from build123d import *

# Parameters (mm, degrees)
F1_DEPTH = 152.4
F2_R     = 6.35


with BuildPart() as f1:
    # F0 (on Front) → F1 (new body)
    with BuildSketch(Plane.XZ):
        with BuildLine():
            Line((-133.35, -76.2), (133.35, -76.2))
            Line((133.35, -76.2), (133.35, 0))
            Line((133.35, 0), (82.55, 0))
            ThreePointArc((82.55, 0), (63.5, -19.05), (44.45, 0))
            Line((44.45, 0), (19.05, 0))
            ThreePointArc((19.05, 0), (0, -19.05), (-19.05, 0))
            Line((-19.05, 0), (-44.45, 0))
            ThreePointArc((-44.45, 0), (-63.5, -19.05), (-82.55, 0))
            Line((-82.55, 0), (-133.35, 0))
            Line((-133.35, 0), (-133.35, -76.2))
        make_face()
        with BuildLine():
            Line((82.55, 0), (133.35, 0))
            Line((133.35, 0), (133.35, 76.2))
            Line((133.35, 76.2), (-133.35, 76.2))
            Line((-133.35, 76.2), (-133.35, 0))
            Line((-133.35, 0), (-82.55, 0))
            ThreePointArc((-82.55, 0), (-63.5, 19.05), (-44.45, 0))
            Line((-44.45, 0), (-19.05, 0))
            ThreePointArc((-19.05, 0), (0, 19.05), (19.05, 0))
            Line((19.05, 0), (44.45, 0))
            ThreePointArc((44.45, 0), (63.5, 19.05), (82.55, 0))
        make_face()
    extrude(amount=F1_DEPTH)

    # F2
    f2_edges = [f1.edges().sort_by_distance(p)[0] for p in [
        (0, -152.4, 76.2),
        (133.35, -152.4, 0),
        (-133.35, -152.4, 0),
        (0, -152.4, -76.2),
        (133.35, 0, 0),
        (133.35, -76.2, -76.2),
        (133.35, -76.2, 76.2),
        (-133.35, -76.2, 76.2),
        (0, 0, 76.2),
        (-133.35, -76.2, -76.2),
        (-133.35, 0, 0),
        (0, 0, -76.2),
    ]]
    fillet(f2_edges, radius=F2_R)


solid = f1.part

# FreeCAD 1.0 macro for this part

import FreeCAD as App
import Part
import Sketcher

V = App.Vector
Q = App.Units.Quantity


def edges_at(feature, points):
    """Names of the edges that pass closest to the given points."""
    edges = feature.Shape.Edges
    near = lambda p: min(range(len(edges)), key=lambda i: edges[i].distToShape(Part.Vertex(*p))[0])
    return sorted({f"Edge{near(p) + 1}" for p in points})


def add_polygon(sketch, points):
    """Adds a closed chain of lines whose ends are joined by coincident constraints."""
    first, n = sketch.GeometryCount, len(points)
    for a, b in zip(points, points[1:] + points[:1]):
        sketch.addGeometry(Part.LineSegment(App.Vector(*a, 0), App.Vector(*b, 0)), False)
    for i in range(n):
        sketch.addConstraint(Sketcher.Constraint("Coincident", first + i, 2, first + (i + 1) % n, 1))

doc = App.newDocument("Part")
params = doc.addObject("Spreadsheet::Sheet", "Params")
for row, (alias, value) in enumerate([
    ("sketch1_diameter", "1.5 in"),
    ("sketch1_height", "6 in"),
    ("sketch1_width", "10.5 in"),
    ("pad1_length", "6 in"),
    ("fillet_radius", "0.25 in"),
], start=1):
    params.set(f"A{row}", alias)
    params.set(f"B{row}", "=" + value)
    params.setAlias(f"B{row}", alias)

body = doc.addObject("PartDesign::Body", "Body")

sketch1 = body.newObject("Sketcher::SketchObject", "Sketch")
sketch1.AttachmentSupport = (doc.getObject("XZ_Plane"), [""])
sketch1.MapMode = "FlatFace"
add_polygon(sketch1, [(-133, -76), (133, -76), (133, 76), (-133, 76)])
sketch1.addGeometry(Part.Circle(V(64, 0, 0), V(0, 0, 1), 19), False)
sketch1.addGeometry(Part.Circle(V(0, 0, 0), V(0, 0, 1), 19), False)
sketch1.addGeometry(Part.Circle(V(-64, 0, 0), V(0, 0, 1), 19), False)
sketch1.addConstraint([
    Sketcher.Constraint("Horizontal", 0),
    Sketcher.Constraint("Vertical", 1),
    Sketcher.Constraint("Horizontal", 2),
    Sketcher.Constraint("Vertical", 3),
    Sketcher.Constraint("Coincident", 5, 3, -1, 1),
    Sketcher.Constraint("Equal", 4, 5),
    Sketcher.Constraint("Equal", 5, 6),
    Sketcher.Constraint("Symmetric", 4, 3, 6, 3, -1, 1),
    Sketcher.Constraint("Symmetric", 0, 2, 2, 2, -1, 1),
    Sketcher.Constraint("PointOnObject", 4, 3, -1),
    Sketcher.Constraint("Diameter", 4, Q("1.5 in")),
    Sketcher.Constraint("DistanceY", 1, 1, 1, 2, Q("6 in")),
    Sketcher.Constraint("DistanceX", 0, 1, 0, 2, Q("10.5 in")),
    Sketcher.Constraint("DistanceX", 6, 3, 4, 3, Q("5 in")),
])
sketch1.setExpression("Constraints[14]", "Params.sketch1_diameter")
sketch1.setExpression("Constraints[15]", "Params.sketch1_height")
sketch1.setExpression("Constraints[16]", "Params.sketch1_width")
pad1 = body.newObject("PartDesign::Pad", "Pad")
pad1.Profile = sketch1
pad1.setExpression("Length", "Params.pad1_length")
doc.recompute()

fillet = body.newObject("PartDesign::Fillet", "Fillet")
fillet.Base = (pad1, edges_at(pad1, [
    (0, -152.4, 76.2),
    (133.35, -152.4, 0),
    (-133.35, -152.4, 0),
    (0, -152.4, -76.2),
    (133.35, 0, 0),
    (133.35, -76.2, -76.2),
    (133.35, -76.2, 76.2),
    (-133.35, -76.2, 76.2),
    (0, 0, 76.2),
    (-133.35, -76.2, -76.2),
    (-133.35, 0, 0),
    (0, 0, -76.2),
]))
fillet.setExpression("Radius", "Params.fillet_radius")

doc.recompute()
